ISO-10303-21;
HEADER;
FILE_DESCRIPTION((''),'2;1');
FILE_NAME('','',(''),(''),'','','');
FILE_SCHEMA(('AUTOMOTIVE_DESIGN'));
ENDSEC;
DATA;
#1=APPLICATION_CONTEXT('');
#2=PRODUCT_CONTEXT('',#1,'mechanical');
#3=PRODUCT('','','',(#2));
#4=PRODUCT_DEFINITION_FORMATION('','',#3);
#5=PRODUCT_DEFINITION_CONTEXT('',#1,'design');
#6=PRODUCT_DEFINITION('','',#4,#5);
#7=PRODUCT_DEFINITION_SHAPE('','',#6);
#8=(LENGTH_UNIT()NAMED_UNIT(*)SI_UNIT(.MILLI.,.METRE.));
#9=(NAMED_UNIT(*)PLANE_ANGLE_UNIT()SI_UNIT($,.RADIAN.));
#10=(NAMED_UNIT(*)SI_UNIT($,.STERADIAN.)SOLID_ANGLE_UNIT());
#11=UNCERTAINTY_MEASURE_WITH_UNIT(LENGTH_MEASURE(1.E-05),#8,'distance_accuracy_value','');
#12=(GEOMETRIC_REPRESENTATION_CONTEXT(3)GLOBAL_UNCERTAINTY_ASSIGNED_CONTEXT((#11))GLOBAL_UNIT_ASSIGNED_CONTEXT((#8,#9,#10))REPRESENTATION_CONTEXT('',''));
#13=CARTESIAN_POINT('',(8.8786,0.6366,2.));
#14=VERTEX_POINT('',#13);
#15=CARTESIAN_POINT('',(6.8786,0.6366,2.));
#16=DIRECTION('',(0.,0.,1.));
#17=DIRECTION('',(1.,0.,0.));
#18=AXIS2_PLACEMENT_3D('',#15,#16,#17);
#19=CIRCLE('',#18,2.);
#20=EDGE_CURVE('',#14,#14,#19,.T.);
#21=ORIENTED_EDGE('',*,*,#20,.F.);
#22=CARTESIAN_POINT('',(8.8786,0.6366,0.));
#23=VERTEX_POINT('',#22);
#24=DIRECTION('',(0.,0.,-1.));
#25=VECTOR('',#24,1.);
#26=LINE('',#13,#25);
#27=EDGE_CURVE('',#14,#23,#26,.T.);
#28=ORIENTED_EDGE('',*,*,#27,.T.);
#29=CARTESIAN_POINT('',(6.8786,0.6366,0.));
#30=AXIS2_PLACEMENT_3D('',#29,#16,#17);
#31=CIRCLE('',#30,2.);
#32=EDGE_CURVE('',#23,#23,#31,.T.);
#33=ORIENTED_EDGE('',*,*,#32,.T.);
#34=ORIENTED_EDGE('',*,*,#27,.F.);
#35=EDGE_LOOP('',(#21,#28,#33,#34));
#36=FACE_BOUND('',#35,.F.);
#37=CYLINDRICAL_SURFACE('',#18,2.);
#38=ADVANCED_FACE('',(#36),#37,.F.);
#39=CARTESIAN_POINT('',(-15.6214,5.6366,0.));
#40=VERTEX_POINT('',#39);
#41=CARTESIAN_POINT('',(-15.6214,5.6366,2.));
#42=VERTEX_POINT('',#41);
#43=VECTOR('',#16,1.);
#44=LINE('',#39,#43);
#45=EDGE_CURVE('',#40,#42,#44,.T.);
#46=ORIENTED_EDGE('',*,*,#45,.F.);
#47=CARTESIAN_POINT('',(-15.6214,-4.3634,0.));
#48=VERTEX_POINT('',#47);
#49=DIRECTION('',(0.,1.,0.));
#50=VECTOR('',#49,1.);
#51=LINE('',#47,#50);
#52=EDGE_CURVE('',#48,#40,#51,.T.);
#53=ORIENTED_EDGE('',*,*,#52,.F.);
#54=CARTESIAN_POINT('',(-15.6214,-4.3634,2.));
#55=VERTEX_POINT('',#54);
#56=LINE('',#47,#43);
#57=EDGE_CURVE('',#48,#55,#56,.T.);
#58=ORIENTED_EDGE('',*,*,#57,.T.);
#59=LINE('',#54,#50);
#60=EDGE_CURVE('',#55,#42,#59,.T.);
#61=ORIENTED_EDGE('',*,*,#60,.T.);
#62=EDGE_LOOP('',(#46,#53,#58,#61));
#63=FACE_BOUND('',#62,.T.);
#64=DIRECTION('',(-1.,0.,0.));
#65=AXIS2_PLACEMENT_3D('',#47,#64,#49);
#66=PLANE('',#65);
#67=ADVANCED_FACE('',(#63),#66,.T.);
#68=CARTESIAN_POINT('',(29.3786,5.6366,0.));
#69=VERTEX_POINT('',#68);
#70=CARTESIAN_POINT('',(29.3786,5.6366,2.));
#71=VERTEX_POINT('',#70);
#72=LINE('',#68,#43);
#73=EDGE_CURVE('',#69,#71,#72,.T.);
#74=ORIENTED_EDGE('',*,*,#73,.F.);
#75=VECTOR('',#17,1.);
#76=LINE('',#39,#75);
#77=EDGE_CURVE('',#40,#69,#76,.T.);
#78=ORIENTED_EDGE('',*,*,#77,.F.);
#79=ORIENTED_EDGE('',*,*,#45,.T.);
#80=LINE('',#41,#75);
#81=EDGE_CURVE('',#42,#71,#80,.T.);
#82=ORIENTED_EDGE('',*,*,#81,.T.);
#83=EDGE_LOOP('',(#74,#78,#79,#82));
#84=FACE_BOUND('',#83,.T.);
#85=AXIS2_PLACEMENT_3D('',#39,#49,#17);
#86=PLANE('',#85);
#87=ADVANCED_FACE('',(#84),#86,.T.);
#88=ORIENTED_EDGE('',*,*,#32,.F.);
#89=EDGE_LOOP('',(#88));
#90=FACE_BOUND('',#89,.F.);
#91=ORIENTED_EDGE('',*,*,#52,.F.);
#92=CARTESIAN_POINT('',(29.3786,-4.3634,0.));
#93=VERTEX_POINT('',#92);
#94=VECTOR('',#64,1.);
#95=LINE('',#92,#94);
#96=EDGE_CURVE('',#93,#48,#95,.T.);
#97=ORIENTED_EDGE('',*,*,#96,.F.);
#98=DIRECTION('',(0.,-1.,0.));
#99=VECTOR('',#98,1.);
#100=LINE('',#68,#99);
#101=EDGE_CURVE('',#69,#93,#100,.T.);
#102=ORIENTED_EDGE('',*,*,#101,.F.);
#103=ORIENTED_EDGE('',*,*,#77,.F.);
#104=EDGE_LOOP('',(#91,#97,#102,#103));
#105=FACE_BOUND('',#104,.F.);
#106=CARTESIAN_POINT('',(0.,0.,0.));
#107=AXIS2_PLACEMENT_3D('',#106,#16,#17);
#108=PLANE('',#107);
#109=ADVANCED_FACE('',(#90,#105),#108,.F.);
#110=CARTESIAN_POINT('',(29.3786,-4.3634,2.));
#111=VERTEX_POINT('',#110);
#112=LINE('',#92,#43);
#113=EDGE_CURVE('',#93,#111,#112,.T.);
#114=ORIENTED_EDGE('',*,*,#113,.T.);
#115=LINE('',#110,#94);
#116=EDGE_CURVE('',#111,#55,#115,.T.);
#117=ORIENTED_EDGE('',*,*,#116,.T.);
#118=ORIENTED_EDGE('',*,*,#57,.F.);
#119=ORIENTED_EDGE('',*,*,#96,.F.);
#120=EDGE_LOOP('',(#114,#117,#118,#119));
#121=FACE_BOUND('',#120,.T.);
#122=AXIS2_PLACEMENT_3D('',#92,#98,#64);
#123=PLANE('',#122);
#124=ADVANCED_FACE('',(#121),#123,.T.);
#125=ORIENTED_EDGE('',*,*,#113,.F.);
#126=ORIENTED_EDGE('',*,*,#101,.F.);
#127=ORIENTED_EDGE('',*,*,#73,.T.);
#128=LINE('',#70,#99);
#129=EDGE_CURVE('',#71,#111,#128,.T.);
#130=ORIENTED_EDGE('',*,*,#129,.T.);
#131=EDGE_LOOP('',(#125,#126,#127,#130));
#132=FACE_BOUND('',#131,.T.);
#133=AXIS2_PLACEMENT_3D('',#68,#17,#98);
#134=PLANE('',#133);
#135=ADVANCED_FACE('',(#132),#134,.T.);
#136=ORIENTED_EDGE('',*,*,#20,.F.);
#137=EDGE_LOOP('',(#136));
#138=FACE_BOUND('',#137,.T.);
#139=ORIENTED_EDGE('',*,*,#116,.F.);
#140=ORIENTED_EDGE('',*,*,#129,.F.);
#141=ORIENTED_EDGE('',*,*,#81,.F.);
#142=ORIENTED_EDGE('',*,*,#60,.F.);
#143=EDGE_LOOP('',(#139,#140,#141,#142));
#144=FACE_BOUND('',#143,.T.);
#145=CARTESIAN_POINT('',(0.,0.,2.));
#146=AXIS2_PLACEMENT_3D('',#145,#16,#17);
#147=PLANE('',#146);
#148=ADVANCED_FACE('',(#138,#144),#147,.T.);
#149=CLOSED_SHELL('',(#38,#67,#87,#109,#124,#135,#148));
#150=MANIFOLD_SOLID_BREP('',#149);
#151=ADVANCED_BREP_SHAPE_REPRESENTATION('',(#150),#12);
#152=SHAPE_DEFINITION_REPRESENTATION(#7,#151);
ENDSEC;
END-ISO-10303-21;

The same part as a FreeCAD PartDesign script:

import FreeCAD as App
import Part
import Sketcher
from FreeCAD import Vector
Q = App.Units.Quantity


def add_polygon(sketch, points):
    """Adds a closed chain of lines whose ends are joined by coincident constraints."""
    first, n = sketch.GeometryCount, len(points)
    for a, b in zip(points, points[1:] + points[:1]):
        sketch.addGeometry(Part.LineSegment(App.Vector(*a, 0), App.Vector(*b, 0)), False)
    for i in range(n):
        sketch.addConstraint(Sketcher.Constraint("Coincident", first + i, 2, first + (i + 1) % n, 1))

doc = App.newDocument("Part")
body = doc.addObject("PartDesign::Body", "Body")

# Sketch on XY plane
sketch1 = body.newObject("Sketcher::SketchObject", "Sketch")
sketch1.AttachmentSupport = (doc.getObject("XY_Plane"), [""])
sketch1.MapMode = "FlatFace"
add_polygon(sketch1, [(29, 6), (-16, 6), (-16, -4), (29, -4)])  # lines 0-3
sketch1.addConstraint([
    Sketcher.Constraint("Horizontal", 0),
    Sketcher.Constraint("Vertical", 1),
    Sketcher.Constraint("Horizontal", 2),
    Sketcher.Constraint("Vertical", 3),
    Sketcher.Constraint("DistanceX", 0, 2, 0, 1, Q("45 mm")),
    Sketcher.Constraint("DistanceY", 1, 2, 1, 1, Q("10 mm")),
    Sketcher.Constraint("DistanceX", 0, 2, -1, 1, Q("15.6214 mm")),
    Sketcher.Constraint("DistanceY", -1, 1, 0, 2, Q("5.6366 mm")),
])
pad1 = body.newObject("PartDesign::Pad", "Pad")
pad1.Profile = sketch1
pad1.Length = 2

# Sketch on XY plane
sketch2 = body.newObject("Sketcher::SketchObject", "Sketch001")
sketch2.AttachmentSupport = (doc.getObject("XY_Plane"), [""])
sketch2.MapMode = "FlatFace"
sketch2.AttachmentOffset = App.Placement(Vector(0, 0, 2), App.Rotation())
sketch2.addGeometry(Part.Circle(Vector(6.9, 0.6, 0), Vector(0, 0, 1), 2), False)
sketch2.addConstraint([
    Sketcher.Constraint("Diameter", 0, Q("4 mm")),
    Sketcher.Constraint("DistanceX", -1, 1, 0, 3, Q("6.8786 mm")),
    Sketcher.Constraint("DistanceY", -1, 1, 0, 3, Q("0.6366 mm")),
])
pocket1 = body.newObject("PartDesign::Pocket", "Pocket")
pocket1.Profile = sketch2
pocket1.Length = 2

doc.recompute()
